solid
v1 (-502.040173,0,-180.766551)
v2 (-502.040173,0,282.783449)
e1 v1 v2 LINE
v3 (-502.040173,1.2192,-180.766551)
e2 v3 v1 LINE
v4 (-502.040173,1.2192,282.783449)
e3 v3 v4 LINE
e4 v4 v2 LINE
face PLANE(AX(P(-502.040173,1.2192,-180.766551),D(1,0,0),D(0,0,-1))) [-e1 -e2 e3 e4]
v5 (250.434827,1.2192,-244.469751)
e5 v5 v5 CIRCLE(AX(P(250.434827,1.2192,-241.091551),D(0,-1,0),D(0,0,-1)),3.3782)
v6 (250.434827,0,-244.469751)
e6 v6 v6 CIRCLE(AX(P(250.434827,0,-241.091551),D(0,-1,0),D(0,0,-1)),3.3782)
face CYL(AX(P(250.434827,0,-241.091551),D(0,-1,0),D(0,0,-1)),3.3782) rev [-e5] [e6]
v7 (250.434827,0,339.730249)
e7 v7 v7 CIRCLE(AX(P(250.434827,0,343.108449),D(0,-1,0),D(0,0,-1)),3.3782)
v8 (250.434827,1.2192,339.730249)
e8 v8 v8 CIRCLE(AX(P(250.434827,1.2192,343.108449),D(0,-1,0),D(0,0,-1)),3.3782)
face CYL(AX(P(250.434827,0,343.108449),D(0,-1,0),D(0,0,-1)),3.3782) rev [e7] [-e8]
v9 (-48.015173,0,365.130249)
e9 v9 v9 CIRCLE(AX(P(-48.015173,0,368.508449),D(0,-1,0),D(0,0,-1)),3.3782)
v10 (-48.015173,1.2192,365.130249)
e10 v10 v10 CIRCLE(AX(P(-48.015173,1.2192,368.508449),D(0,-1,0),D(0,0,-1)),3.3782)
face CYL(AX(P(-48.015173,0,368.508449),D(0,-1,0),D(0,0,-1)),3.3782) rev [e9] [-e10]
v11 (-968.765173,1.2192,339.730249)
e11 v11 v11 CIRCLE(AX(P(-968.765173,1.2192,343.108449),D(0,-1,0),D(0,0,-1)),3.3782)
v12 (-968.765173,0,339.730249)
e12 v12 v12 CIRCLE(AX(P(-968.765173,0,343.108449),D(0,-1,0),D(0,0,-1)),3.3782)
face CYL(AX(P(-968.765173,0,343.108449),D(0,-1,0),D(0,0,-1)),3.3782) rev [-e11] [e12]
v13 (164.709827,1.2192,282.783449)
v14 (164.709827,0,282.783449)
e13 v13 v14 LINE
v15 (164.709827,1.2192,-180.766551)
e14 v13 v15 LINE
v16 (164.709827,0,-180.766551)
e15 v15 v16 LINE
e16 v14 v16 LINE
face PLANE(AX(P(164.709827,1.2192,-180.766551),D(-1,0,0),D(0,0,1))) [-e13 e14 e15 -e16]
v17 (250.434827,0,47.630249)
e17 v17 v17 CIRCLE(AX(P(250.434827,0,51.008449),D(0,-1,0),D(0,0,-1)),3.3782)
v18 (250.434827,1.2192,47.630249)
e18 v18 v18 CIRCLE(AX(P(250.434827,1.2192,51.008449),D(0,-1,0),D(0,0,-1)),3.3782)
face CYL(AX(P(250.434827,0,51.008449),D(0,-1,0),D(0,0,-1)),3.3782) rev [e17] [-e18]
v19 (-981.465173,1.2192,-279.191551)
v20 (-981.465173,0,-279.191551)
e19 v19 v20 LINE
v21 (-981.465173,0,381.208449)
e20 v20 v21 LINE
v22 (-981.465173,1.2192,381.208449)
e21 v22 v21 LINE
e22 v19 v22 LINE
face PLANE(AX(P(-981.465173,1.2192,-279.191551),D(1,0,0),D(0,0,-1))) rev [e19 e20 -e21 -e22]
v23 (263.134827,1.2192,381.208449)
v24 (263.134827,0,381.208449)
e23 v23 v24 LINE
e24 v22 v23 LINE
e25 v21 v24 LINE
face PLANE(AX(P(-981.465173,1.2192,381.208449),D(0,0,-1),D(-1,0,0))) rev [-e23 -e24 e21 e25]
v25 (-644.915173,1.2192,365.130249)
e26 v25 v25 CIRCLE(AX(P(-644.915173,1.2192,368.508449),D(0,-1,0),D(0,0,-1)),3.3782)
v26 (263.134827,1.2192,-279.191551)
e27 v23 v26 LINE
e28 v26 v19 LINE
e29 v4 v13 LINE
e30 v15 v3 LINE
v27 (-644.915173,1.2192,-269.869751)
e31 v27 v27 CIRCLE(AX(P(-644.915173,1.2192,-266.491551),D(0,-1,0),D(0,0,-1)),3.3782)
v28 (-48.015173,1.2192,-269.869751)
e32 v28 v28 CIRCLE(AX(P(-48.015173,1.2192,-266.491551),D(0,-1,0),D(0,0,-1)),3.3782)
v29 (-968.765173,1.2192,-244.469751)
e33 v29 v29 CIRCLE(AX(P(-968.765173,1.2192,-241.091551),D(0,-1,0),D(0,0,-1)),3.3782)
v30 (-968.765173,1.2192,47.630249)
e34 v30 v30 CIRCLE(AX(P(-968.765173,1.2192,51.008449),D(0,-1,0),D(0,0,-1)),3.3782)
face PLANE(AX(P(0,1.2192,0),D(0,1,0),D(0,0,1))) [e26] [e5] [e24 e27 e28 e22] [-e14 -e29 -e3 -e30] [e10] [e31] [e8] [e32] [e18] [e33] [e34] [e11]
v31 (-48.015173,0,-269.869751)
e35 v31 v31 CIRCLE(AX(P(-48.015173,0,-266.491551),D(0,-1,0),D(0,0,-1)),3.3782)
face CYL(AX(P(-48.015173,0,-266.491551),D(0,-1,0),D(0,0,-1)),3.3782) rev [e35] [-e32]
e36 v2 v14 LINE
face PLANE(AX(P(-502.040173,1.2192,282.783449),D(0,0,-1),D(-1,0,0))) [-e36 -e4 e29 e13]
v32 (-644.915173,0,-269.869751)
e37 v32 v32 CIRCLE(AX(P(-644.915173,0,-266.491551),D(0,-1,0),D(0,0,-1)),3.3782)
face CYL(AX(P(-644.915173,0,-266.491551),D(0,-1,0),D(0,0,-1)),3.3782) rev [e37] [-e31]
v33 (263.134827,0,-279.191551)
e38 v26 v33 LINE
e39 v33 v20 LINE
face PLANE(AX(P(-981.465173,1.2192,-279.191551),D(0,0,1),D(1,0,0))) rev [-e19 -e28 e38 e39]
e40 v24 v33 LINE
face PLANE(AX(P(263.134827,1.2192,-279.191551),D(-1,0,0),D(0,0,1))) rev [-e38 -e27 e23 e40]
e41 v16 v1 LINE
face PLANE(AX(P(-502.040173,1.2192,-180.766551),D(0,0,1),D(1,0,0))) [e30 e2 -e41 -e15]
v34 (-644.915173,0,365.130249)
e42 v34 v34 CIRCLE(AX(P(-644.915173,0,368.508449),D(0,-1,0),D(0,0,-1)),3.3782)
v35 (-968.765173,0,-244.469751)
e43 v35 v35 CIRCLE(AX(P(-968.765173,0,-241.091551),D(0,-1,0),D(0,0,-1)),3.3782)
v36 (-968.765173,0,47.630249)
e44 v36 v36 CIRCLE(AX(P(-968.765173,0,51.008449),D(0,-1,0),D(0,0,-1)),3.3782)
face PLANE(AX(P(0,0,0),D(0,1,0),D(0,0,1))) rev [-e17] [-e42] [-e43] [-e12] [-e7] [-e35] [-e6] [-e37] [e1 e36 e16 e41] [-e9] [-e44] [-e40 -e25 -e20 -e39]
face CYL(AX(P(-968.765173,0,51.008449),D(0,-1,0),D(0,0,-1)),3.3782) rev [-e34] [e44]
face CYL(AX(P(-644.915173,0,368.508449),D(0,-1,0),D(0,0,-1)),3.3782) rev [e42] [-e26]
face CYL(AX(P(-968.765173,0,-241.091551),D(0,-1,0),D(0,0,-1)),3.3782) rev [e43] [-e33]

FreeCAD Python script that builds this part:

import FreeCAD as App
import Part
import Sketcher
Q = App.Units.Quantity

doc = App.newDocument("Part")
params = doc.addObject("Spreadsheet::Sheet", "Params")
for row, (alias, value) in enumerate([
    ("sketch1_width", "49 in"),
    ("sketch1_height", "26 in"),
    ("sketch1_width2", "26.25 in"),
    ("sketch1_height2", "18.25 in"),
    ("pad1_length", "0.048 in"),
    ("sketch2_diameter", "0.266 in"),
    ("hole_diameter", "0.266 in"),
], start=1):
    params.set(f"A{row}", alias)
    params.set(f"B{row}", "=" + value)
    params.setAlias(f"B{row}", alias)

body = doc.addObject("PartDesign::Body", "Body")

# Sketch on XZ plane
sketch1 = body.newObject("Sketcher::SketchObject", "Sketch")
sketch1.AttachmentSupport = (doc.getObject("XZ_Plane"), [""])
sketch1.MapMode = "FlatFace"
sketch1.addGeometry([
    Part.LineSegment(App.Vector(-981, -279, 0), App.Vector(-981, 381, 0)),  # 0
    Part.LineSegment(App.Vector(-981, 381, 0), App.Vector(263, 381, 0)),  # 1
    Part.LineSegment(App.Vector(263, 381, 0), App.Vector(263, -279, 0)),  # 2
    Part.LineSegment(App.Vector(263, -279, 0), App.Vector(-981, -279, 0)),  # 3
    Part.LineSegment(App.Vector(165, 283, 0), App.Vector(-502, 283, 0)),  # 4
    Part.LineSegment(App.Vector(-502, 283, 0), App.Vector(-502, -181, 0)),  # 5
    Part.LineSegment(App.Vector(-502, -181, 0), App.Vector(165, -181, 0)),  # 6
    Part.LineSegment(App.Vector(165, -181, 0), App.Vector(165, 283, 0)),  # 7
], False)
sketch1.addConstraint([
    Sketcher.Constraint("Coincident", 0, 2, 1, 1),
    Sketcher.Constraint("Coincident", 1, 2, 2, 1),
    Sketcher.Constraint("Coincident", 2, 2, 3, 1),
    Sketcher.Constraint("Coincident", 3, 2, 0, 1),
    Sketcher.Constraint("Coincident", 4, 2, 5, 1),
    Sketcher.Constraint("Coincident", 5, 2, 6, 1),
    Sketcher.Constraint("Coincident", 6, 2, 7, 1),
    Sketcher.Constraint("Coincident", 7, 2, 4, 1),
    Sketcher.Constraint("Vertical", 0),
    Sketcher.Constraint("Horizontal", 1),
    Sketcher.Constraint("Vertical", 2),
    Sketcher.Constraint("Horizontal", 3),
    Sketcher.Constraint("Horizontal", 4),
    Sketcher.Constraint("Vertical", 5),
    Sketcher.Constraint("Horizontal", 6),
    Sketcher.Constraint("Vertical", 7),
    Sketcher.Constraint("DistanceX", 1, 1, 1, 2, Q("49 in")),
    Sketcher.Constraint("DistanceY", 0, 1, 0, 2, Q("26 in")),
    Sketcher.Constraint("DistanceX", 4, 2, 4, 1, Q("26.25 in")),
    Sketcher.Constraint("DistanceY", 5, 2, 5, 1, Q("18.25 in")),
    Sketcher.Constraint("DistanceX", 0, 2, 4, 2, Q("18.875 in")),
    Sketcher.Constraint("DistanceY", 4, 2, 0, 2, Q("3.875 in")),
    Sketcher.Constraint("DistanceY", -1, 1, 0, 2, 381.208449),
    Sketcher.Constraint("DistanceX", 0, 2, -1, 1, 981.465173),
])
sketch1.setExpression("Constraints[16]", "Params.sketch1_width")
sketch1.setExpression("Constraints[17]", "Params.sketch1_height")
sketch1.setExpression("Constraints[18]", "Params.sketch1_width2")
sketch1.setExpression("Constraints[19]", "Params.sketch1_height2")
pad1 = body.newObject("PartDesign::Pad", "Pad")
pad1.Profile = sketch1
pad1.setExpression("Length", "Params.pad1_length")
pad1.Reversed = True

# Sketch on XZ plane
sketch2 = body.newObject("Sketcher::SketchObject", "Sketch001")
sketch2.AttachmentSupport = (doc.getObject("XZ_Plane"), [""])
sketch2.MapMode = "FlatFace"
sketch2.addGeometry([
    Part.Circle(App.Vector(-968.8, -241.1, 0), App.Vector(0, 0, 1), 3.4),  # 0
    Part.Circle(App.Vector(-968.8, 51, 0), App.Vector(0, 0, 1), 3.4),  # 1
    Part.Circle(App.Vector(-968.8, 343.1, 0), App.Vector(0, 0, 1), 3.4),  # 2
    Part.Circle(App.Vector(-644.9, 368.5, 0), App.Vector(0, 0, 1), 3.4),  # 3
    Part.Circle(App.Vector(-644.9, -266.5, 0), App.Vector(0, 0, 1), 3.4),  # 4
    Part.Circle(App.Vector(-48, -266.5, 0), App.Vector(0, 0, 1), 3.4),  # 5
    Part.Circle(App.Vector(250.4, -241.1, 0), App.Vector(0, 0, 1), 3.4),  # 6
    Part.Circle(App.Vector(250.4, 51, 0), App.Vector(0, 0, 1), 3.4),  # 7
    Part.Circle(App.Vector(250.4, 343.1, 0), App.Vector(0, 0, 1), 3.4),  # 8
    Part.Circle(App.Vector(-48, 368.5, 0), App.Vector(0, 0, 1), 3.4),  # 9
], False)
sketch2.addConstraint([
    Sketcher.Constraint("Equal", 0, 1),
    Sketcher.Constraint("Equal", 1, 2),
    Sketcher.Constraint("Equal", 2, 3),
    Sketcher.Constraint("Equal", 3, 4),
    Sketcher.Constraint("Equal", 4, 5),
    Sketcher.Constraint("Equal", 5, 6),
    Sketcher.Constraint("Equal", 6, 7),
    Sketcher.Constraint("Equal", 7, 8),
    Sketcher.Constraint("Equal", 8, 9),
    Sketcher.Constraint("Horizontal", 4, 3, 5, 3),
    Sketcher.Constraint("Horizontal", 0, 3, 6, 3),
    Sketcher.Constraint("Horizontal", 1, 3, 7, 3),
    Sketcher.Constraint("Horizontal", 2, 3, 8, 3),
    Sketcher.Constraint("Horizontal", 3, 3, 9, 3),
    Sketcher.Constraint("Vertical", 0, 3, 1, 3),
    Sketcher.Constraint("Vertical", 1, 3, 2, 3),
    Sketcher.Constraint("Vertical", 3, 3, 4, 3),
    Sketcher.Constraint("Vertical", 6, 3, 7, 3),
    Sketcher.Constraint("Vertical", 7, 3, 8, 3),
    Sketcher.Constraint("Vertical", 5, 3, 9, 3),
    Sketcher.Constraint("Diameter", 0, Q("0.266 in")),
    Sketcher.Constraint("DistanceY", 0, 3, 2, 3, Q("23 in")),
    Sketcher.Constraint("DistanceY", 2, 3, 3, 3, Q("1 in")),
    Sketcher.Constraint("DistanceY", 4, 3, 0, 3, Q("1 in")),
    Sketcher.Constraint("DistanceX", 0, 3, 6, 3, Q("48 in")),
    Sketcher.Constraint("DistanceY", 0, 3, 1, 3, Q("11.5 in")),
    Sketcher.Constraint("DistanceX", 4, 3, 5, 3, Q("23.5 in")),
    Sketcher.Constraint("DistanceX", 2, 3, 3, 3, Q("12.75 in")),
    Sketcher.Constraint("DistanceY", 0, 3, -1, 1, 241.091551),
    Sketcher.Constraint("DistanceX", 0, 3, -1, 1, 968.765173),
])
sketch2.setExpression("Constraints[20]", "Params.sketch2_diameter")
doc.recompute()
hole = body.newObject("PartDesign::Hole", "Hole")
hole.Profile = sketch2
hole.ThreadType = "None"
hole.setExpression("Diameter", "Params.hole_diameter")
hole.DepthType = "ThroughAll"

doc.recompute()
